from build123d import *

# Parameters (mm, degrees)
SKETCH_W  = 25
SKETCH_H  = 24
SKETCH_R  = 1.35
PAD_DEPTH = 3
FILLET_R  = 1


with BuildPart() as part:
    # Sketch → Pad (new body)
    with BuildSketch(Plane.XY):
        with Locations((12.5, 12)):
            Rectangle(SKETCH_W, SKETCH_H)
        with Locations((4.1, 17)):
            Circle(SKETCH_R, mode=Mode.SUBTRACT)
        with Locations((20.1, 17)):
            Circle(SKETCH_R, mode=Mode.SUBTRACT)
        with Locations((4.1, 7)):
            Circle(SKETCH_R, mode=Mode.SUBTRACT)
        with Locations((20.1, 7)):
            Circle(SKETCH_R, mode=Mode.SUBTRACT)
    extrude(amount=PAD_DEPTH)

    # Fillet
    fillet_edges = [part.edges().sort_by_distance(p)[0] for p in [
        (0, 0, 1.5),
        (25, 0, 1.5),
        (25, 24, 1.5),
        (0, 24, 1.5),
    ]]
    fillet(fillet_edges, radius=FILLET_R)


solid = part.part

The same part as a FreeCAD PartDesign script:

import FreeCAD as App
import Part
import Sketcher
Q = App.Units.Quantity


def edges_at(feature, points):
    """Names of the edges that pass closest to the given points."""
    edges = feature.Shape.Edges
    near = lambda p: min(range(len(edges)), key=lambda i: edges[i].distToShape(Part.Vertex(*p))[0])
    return sorted({f"Edge{near(p) + 1}" for p in points})

doc = App.newDocument("Part")
body = doc.addObject("PartDesign::Body", "Body")

sketch1 = body.newObject("Sketcher::SketchObject", "Sketch")
sketch1.AttachmentSupport = (doc.getObject("XY_Plane"), [""])
sketch1.MapMode = "FlatFace"
sketch1.addGeometry([
    Part.LineSegment(App.Vector(0, 24, 0), App.Vector(0, 0, 0)),
    Part.LineSegment(App.Vector(0, 0, 0), App.Vector(25, 0, 0)),
    Part.LineSegment(App.Vector(25, 0, 0), App.Vector(25, 24, 0)),
    Part.LineSegment(App.Vector(25, 24, 0), App.Vector(0, 24, 0)),
    Part.Circle(App.Vector(4.1, 7, 0), App.Vector(0, 0, 1), 1.4),
    Part.Circle(App.Vector(20.1, 7, 0), App.Vector(0, 0, 1), 1.4),
    Part.Circle(App.Vector(4.1, 17, 0), App.Vector(0, 0, 1), 1.4),
    Part.Circle(App.Vector(20.1, 17, 0), App.Vector(0, 0, 1), 1.4),
], False)
sketch1.addConstraint([
    Sketcher.Constraint("Coincident", 0, 2, 1, 1),
    Sketcher.Constraint("Coincident", 1, 2, 2, 1),
    Sketcher.Constraint("Coincident", 2, 2, 3, 1),
    Sketcher.Constraint("Coincident", 3, 2, 0, 1),
    Sketcher.Constraint("Vertical", 0),
    Sketcher.Constraint("Horizontal", 1),
    Sketcher.Constraint("Vertical", 2),
    Sketcher.Constraint("Horizontal", 3),
    Sketcher.Constraint("Coincident", 0, 2, -1, 1),
    Sketcher.Constraint("Equal", 4, 5),
    Sketcher.Constraint("Equal", 5, 6),
    Sketcher.Constraint("Equal", 6, 7),
    Sketcher.Constraint("Horizontal", 4, 3, 5, 3),
    Sketcher.Constraint("Horizontal", 6, 3, 7, 3),
    Sketcher.Constraint("Vertical", 4, 3, 6, 3),
    Sketcher.Constraint("Vertical", 5, 3, 7, 3),
    Sketcher.Constraint("Diameter", 4, Q("2.7 mm")),
    Sketcher.Constraint("DistanceX", 1, 1, 1, 2, Q("25 mm")),
    Sketcher.Constraint("DistanceY", 0, 2, 0, 1, Q("24 mm")),
    Sketcher.Constraint("DistanceY", -1, 1, 4, 3, Q("7 mm")),
    Sketcher.Constraint("DistanceY", -1, 1, 6, 3, Q("17 mm")),
    Sketcher.Constraint("DistanceX", 4, 3, 5, 3, Q("16 mm")),
    Sketcher.Constraint("DistanceX", -1, 1, 4, 3, Q("4.1 mm")),
])
pad1 = body.newObject("PartDesign::Pad", "Pad")
pad1.Profile = sketch1
pad1.Length = 3
doc.recompute()

fillet = body.newObject("PartDesign::Fillet", "Fillet")
fillet.Base = (pad1, edges_at(pad1, [
    (0, 0, 1.5),
    (25, 0, 1.5),
    (25, 24, 1.5),
    (0, 24, 1.5),
]))
fillet.Radius = 1

doc.recompute()
